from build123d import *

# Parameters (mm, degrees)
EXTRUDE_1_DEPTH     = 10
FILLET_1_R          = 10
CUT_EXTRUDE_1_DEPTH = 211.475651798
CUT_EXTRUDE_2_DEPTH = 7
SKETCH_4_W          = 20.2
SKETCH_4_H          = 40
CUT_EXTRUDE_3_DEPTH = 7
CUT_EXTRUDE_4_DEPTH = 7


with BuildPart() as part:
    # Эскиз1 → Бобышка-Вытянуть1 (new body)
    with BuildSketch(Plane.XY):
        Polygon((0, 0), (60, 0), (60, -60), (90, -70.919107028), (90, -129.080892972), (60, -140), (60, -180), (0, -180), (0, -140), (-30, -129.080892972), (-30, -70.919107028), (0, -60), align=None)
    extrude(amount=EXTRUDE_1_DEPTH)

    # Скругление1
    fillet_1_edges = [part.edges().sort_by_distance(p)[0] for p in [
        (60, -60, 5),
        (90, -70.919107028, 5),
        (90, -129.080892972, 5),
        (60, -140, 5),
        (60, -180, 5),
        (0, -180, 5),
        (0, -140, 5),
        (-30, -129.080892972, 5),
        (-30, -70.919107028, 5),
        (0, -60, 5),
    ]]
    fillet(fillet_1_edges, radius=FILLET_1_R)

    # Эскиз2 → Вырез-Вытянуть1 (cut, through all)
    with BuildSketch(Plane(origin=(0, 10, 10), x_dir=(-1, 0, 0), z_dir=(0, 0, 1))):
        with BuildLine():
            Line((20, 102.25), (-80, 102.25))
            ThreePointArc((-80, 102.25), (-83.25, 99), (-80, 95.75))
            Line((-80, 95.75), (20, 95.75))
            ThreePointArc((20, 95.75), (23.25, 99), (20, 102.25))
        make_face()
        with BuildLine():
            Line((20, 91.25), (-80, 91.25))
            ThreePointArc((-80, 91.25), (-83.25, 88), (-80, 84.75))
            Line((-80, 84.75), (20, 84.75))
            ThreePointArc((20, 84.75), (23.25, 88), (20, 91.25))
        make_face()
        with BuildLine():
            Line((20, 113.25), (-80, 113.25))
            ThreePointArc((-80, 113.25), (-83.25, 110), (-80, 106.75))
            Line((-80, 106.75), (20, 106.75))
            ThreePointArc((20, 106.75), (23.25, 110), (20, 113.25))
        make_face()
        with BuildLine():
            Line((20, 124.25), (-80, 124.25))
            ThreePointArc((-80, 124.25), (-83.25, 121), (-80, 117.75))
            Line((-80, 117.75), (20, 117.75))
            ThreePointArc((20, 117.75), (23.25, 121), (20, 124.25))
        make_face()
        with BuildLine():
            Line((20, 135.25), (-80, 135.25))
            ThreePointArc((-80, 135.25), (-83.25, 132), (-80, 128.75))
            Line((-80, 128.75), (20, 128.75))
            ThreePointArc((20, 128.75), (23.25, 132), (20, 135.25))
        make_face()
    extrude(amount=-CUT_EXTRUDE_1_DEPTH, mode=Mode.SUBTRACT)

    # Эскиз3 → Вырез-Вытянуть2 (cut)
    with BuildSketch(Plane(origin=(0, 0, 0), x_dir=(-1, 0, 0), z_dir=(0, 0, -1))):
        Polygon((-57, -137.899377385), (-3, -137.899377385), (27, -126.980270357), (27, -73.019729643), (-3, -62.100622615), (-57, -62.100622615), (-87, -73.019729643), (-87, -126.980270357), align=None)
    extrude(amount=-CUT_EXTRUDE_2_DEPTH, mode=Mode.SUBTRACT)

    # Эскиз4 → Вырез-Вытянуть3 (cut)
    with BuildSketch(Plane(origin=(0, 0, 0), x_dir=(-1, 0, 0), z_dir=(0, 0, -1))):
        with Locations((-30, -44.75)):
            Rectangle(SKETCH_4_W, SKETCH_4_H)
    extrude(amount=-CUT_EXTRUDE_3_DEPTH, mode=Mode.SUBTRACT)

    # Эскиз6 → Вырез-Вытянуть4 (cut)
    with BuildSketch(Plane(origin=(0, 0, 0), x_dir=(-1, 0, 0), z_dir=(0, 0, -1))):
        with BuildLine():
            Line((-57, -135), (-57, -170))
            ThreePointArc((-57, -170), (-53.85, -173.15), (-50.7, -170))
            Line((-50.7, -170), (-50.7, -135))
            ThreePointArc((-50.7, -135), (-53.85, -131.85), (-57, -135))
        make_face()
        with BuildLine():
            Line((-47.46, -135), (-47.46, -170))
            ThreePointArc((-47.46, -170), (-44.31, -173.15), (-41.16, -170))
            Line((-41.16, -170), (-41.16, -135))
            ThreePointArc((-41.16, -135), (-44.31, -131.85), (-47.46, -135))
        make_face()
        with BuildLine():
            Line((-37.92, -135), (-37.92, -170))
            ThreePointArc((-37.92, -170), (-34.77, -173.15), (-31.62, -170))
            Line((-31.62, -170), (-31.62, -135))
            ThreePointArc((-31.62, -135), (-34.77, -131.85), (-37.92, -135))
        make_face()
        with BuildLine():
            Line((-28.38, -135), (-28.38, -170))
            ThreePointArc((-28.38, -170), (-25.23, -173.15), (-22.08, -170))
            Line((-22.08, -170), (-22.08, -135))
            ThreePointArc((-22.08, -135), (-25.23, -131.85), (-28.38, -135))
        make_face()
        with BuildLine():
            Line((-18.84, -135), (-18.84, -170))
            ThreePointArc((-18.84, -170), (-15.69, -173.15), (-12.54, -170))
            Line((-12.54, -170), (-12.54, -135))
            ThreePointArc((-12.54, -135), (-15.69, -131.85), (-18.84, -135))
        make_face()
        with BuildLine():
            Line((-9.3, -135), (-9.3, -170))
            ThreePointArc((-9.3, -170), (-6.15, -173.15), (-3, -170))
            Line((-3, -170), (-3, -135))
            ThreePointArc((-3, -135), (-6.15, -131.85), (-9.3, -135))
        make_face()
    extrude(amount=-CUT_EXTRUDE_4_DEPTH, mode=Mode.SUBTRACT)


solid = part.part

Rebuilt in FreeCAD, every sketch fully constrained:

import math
import FreeCAD as App
import Part
import Sketcher
from FreeCAD import Vector
Q = App.Units.Quantity


def edges_at(feature, points):
    """Names of the edges that pass closest to the given points."""
    edges = feature.Shape.Edges
    near = lambda p: min(range(len(edges)), key=lambda i: edges[i].distToShape(Part.Vertex(*p))[0])
    return sorted({f"Edge{near(p) + 1}" for p in points})

doc = App.newDocument("Part")
body = doc.addObject("PartDesign::Body", "Body")

# Sketch on XY plane
sketch1 = body.newObject("Sketcher::SketchObject", "Sketch")
sketch1.AttachmentSupport = (doc.getObject("XY_Plane"), [""])
sketch1.MapMode = "FlatFace"
sketch1.addGeometry(Part.LineSegment(Vector(60, 0, 0), Vector(0, 0, 0)), False)
sketch1.addGeometry(Part.LineSegment(Vector(0, 0, 0), Vector(0, -60, 0)), False)
sketch1.addGeometry(Part.LineSegment(Vector(0, -60, 0), Vector(-30, -71, 0)), False)
sketch1.addGeometry(Part.LineSegment(Vector(-30, -71, 0), Vector(-30, -129, 0)), False)
sketch1.addGeometry(Part.LineSegment(Vector(-30, -129, 0), Vector(0, -140, 0)), False)
sketch1.addGeometry(Part.LineSegment(Vector(0, -140, 0), Vector(0, -180, 0)), False)
sketch1.addGeometry(Part.LineSegment(Vector(0, -180, 0), Vector(60, -180, 0)), False)
sketch1.addGeometry(Part.LineSegment(Vector(60, -180, 0), Vector(60, -140, 0)), False)
sketch1.addGeometry(Part.LineSegment(Vector(60, -140, 0), Vector(90, -129, 0)), False)
sketch1.addGeometry(Part.LineSegment(Vector(90, -129, 0), Vector(90, -71, 0)), False)
sketch1.addGeometry(Part.LineSegment(Vector(90, -71, 0), Vector(60, -60, 0)), False)
sketch1.addGeometry(Part.LineSegment(Vector(60, -60, 0), Vector(60, 0, 0)), False)
sketch1.addConstraint(Sketcher.Constraint("Coincident", 0, 2, 1, 1))
sketch1.addConstraint(Sketcher.Constraint("Coincident", 1, 2, 2, 1))
sketch1.addConstraint(Sketcher.Constraint("Coincident", 2, 2, 3, 1))
sketch1.addConstraint(Sketcher.Constraint("Coincident", 3, 2, 4, 1))
sketch1.addConstraint(Sketcher.Constraint("Coincident", 4, 2, 5, 1))
sketch1.addConstraint(Sketcher.Constraint("Coincident", 5, 2, 6, 1))
sketch1.addConstraint(Sketcher.Constraint("Coincident", 6, 2, 7, 1))
sketch1.addConstraint(Sketcher.Constraint("Coincident", 7, 2, 8, 1))
sketch1.addConstraint(Sketcher.Constraint("Coincident", 8, 2, 9, 1))
sketch1.addConstraint(Sketcher.Constraint("Coincident", 9, 2, 10, 1))
sketch1.addConstraint(Sketcher.Constraint("Coincident", 10, 2, 11, 1))
sketch1.addConstraint(Sketcher.Constraint("Coincident", 11, 2, 0, 1))
sketch1.addConstraint(Sketcher.Constraint("Horizontal", 0))
sketch1.addConstraint(Sketcher.Constraint("Vertical", 1))
sketch1.addConstraint(Sketcher.Constraint("Vertical", 3))
sketch1.addConstraint(Sketcher.Constraint("Vertical", 5))
sketch1.addConstraint(Sketcher.Constraint("Horizontal", 6))
sketch1.addConstraint(Sketcher.Constraint("Vertical", 7))
sketch1.addConstraint(Sketcher.Constraint("Vertical", 9))
sketch1.addConstraint(Sketcher.Constraint("Vertical", 11))
sketch1.addConstraint(Sketcher.Constraint("Coincident", 0, 2, -1, 1))
sketch1.addConstraint(Sketcher.Constraint("PointOnObject", 4, 2, -2))
sketch1.addConstraint(Sketcher.Constraint("Parallel", 2, 8))
sketch1.addConstraint(Sketcher.Constraint("Parallel", 4, 10))
sketch1.addConstraint(Sketcher.Constraint("Horizontal", 4, 2, 7, 2))
sketch1.addConstraint(Sketcher.Constraint("Horizontal", 3, 2, 8, 2))
sketch1.addConstraint(Sketcher.Constraint("Horizontal", 2, 2, 9, 2))
sketch1.addConstraint(Sketcher.Constraint("Horizontal", 1, 2, 10, 2))
sketch1.addConstraint(Sketcher.Constraint("Vertical", 7, 2, 10, 2))
sketch1.addConstraint(Sketcher.Constraint("Equal", 6, 1))
sketch1.addConstraint(Sketcher.Constraint("DistanceX", 0, 2, 0, 1, 60.0))
sketch1.addConstraint(Sketcher.Constraint("DistanceY", 5, 2, 5, 1, 40.0))
sketch1.addConstraint(Sketcher.Constraint("Angle", 2, Q("-160 deg")))
sketch1.addConstraint(Sketcher.Constraint("DistanceX", 2, 2, -1, 1, 30.0))
sketch1.addConstraint(Sketcher.Constraint("DistanceY", 4, 2, -1, 1, 140.0))
pad1 = body.newObject("PartDesign::Pad", "Pad")
pad1.Profile = sketch1
pad1.Length = 10
doc.recompute()

fillet = body.newObject("PartDesign::Fillet", "Fillet")
fillet.Base = (pad1, edges_at(pad1, [
    (60, -60, 5),
    (90, -70.919, 5),
    (90, -129.081, 5),
    (60, -140, 5),
    (60, -180, 5),
    (0, -180, 5),
    (0, -140, 5),
    (-30, -129.081, 5),
    (-30, -70.919, 5),
    (0, -60, 5),
]))
fillet.Radius = 10

# Sketch on XY plane
sketch2 = body.newObject("Sketcher::SketchObject", "Sketch001")
sketch2.AttachmentSupport = (doc.getObject("XY_Plane"), [""])
sketch2.MapMode = "FlatFace"
sketch2.AttachmentOffset = App.Placement(Vector(0, 0, 10), App.Rotation())
sketch2.addGeometry(Part.LineSegment(Vector(-20, -92.2, 0), Vector(80, -92.2, 0)), False)
sketch2.addGeometry(Part.ArcOfCircle(Part.Circle(Vector(80, -89, 0), Vector(0, 0, 1), 3.2), math.radians(-90), math.radians(90)), False)
sketch2.addGeometry(Part.LineSegment(Vector(80, -85.8, 0), Vector(-20, -85.8, 0)), False)
sketch2.addGeometry(Part.ArcOfCircle(Part.Circle(Vector(-20, -89, 0), Vector(0, 0, 1), 3.2), math.radians(90), math.radians(270)), False)
sketch2.addGeometry(Part.LineSegment(Vector(-20, -81.2, 0), Vector(80, -81.2, 0)), False)
sketch2.addGeometry(Part.ArcOfCircle(Part.Circle(Vector(80, -78, 0), Vector(0, 0, 1), 3.2), math.radians(-90), math.radians(90)), False)
sketch2.addGeometry(Part.LineSegment(Vector(80, -74.8, 0), Vector(-20, -74.8, 0)), False)
sketch2.addGeometry(Part.ArcOfCircle(Part.Circle(Vector(-20, -78, 0), Vector(0, 0, 1), 3.2), math.radians(90), math.radians(270)), False)
sketch2.addGeometry(Part.LineSegment(Vector(-20, -103.2, 0), Vector(80, -103.2, 0)), False)
sketch2.addGeometry(Part.ArcOfCircle(Part.Circle(Vector(80, -100, 0), Vector(0, 0, 1), 3.2), math.radians(-90), math.radians(90)), False)
sketch2.addGeometry(Part.LineSegment(Vector(80, -96.8, 0), Vector(-20, -96.8, 0)), False)
sketch2.addGeometry(Part.ArcOfCircle(Part.Circle(Vector(-20, -100, 0), Vector(0, 0, 1), 3.2), math.radians(90), math.radians(270)), False)
sketch2.addGeometry(Part.LineSegment(Vector(-20, -114.2, 0), Vector(80, -114.2, 0)), False)
sketch2.addGeometry(Part.ArcOfCircle(Part.Circle(Vector(80, -111, 0), Vector(0, 0, 1), 3.2), math.radians(-90), math.radians(90)), False)
sketch2.addGeometry(Part.LineSegment(Vector(80, -107.8, 0), Vector(-20, -107.8, 0)), False)
sketch2.addGeometry(Part.ArcOfCircle(Part.Circle(Vector(-20, -111, 0), Vector(0, 0, 1), 3.2), math.radians(90), math.radians(270)), False)
sketch2.addGeometry(Part.LineSegment(Vector(-20, -125.2, 0), Vector(80, -125.2, 0)), False)
sketch2.addGeometry(Part.ArcOfCircle(Part.Circle(Vector(80, -122, 0), Vector(0, 0, 1), 3.2), math.radians(-90), math.radians(90)), False)
sketch2.addGeometry(Part.LineSegment(Vector(80, -118.8, 0), Vector(-20, -118.8, 0)), False)
sketch2.addGeometry(Part.ArcOfCircle(Part.Circle(Vector(-20, -122, 0), Vector(0, 0, 1), 3.2), math.radians(90), math.radians(270)), False)
sketch2.addConstraint(Sketcher.Constraint("Tangent", 0, 2, 1, 1))
sketch2.addConstraint(Sketcher.Constraint("Tangent", 1, 2, 2, 1))
sketch2.addConstraint(Sketcher.Constraint("Tangent", 2, 2, 3, 1))
sketch2.addConstraint(Sketcher.Constraint("Tangent", 3, 2, 0, 1))
sketch2.addConstraint(Sketcher.Constraint("Tangent", 4, 2, 5, 1))
sketch2.addConstraint(Sketcher.Constraint("Tangent", 5, 2, 6, 1))
sketch2.addConstraint(Sketcher.Constraint("Tangent", 6, 2, 7, 1))
sketch2.addConstraint(Sketcher.Constraint("Tangent", 7, 2, 4, 1))
sketch2.addConstraint(Sketcher.Constraint("Tangent", 8, 2, 9, 1))
sketch2.addConstraint(Sketcher.Constraint("Tangent", 9, 2, 10, 1))
sketch2.addConstraint(Sketcher.Constraint("Tangent", 10, 2, 11, 1))
sketch2.addConstraint(Sketcher.Constraint("Tangent", 11, 2, 8, 1))
sketch2.addConstraint(Sketcher.Constraint("Tangent", 12, 2, 13, 1))
sketch2.addConstraint(Sketcher.Constraint("Tangent", 13, 2, 14, 1))
sketch2.addConstraint(Sketcher.Constraint("Tangent", 14, 2, 15, 1))
sketch2.addConstraint(Sketcher.Constraint("Tangent", 15, 2, 12, 1))
sketch2.addConstraint(Sketcher.Constraint("Tangent", 16, 2, 17, 1))
sketch2.addConstraint(Sketcher.Constraint("Tangent", 17, 2, 18, 1))
sketch2.addConstraint(Sketcher.Constraint("Tangent", 18, 2, 19, 1))
sketch2.addConstraint(Sketcher.Constraint("Tangent", 19, 2, 16, 1))
sketch2.addConstraint(Sketcher.Constraint("Horizontal", 0))
sketch2.addConstraint(Sketcher.Constraint("Horizontal", 2))
sketch2.addConstraint(Sketcher.Constraint("Horizontal", 4))
sketch2.addConstraint(Sketcher.Constraint("Horizontal", 6))
sketch2.addConstraint(Sketcher.Constraint("Horizontal", 8))
sketch2.addConstraint(Sketcher.Constraint("Horizontal", 10))
sketch2.addConstraint(Sketcher.Constraint("Horizontal", 12))
sketch2.addConstraint(Sketcher.Constraint("Horizontal", 14))
sketch2.addConstraint(Sketcher.Constraint("Horizontal", 16))
sketch2.addConstraint(Sketcher.Constraint("Horizontal", 18))
sketch2.addConstraint(Sketcher.Constraint("Equal", 3, 5))
sketch2.addConstraint(Sketcher.Constraint("Equal", 7, 9))
sketch2.addConstraint(Sketcher.Constraint("Equal", 11, 13))
sketch2.addConstraint(Sketcher.Constraint("Equal", 15, 17))
sketch2.addConstraint(Sketcher.Constraint("Vertical", 1, 3, 5, 3))
sketch2.addConstraint(Sketcher.Constraint("Vertical", 3, 3, 7, 3))
sketch2.addConstraint(Sketcher.Constraint("Vertical", 5, 3, 9, 3))
sketch2.addConstraint(Sketcher.Constraint("Vertical", 7, 3, 11, 3))
sketch2.addConstraint(Sketcher.Constraint("Vertical", 9, 3, 13, 3))
sketch2.addConstraint(Sketcher.Constraint("Vertical", 11, 3, 15, 3))
sketch2.addConstraint(Sketcher.Constraint("Vertical", 13, 3, 17, 3))
sketch2.addConstraint(Sketcher.Constraint("Vertical", 15, 3, 19, 3))
sketch2.addConstraint(Sketcher.Constraint("DistanceX", 0, 1, 0, 2, 100.0))
sketch2.addConstraint(Sketcher.Constraint("Radius", 1, 3.25))
sketch2.addConstraint(Sketcher.Constraint("DistanceX", -1, 1, 1, 3, 80.0))
sketch2.addConstraint(Sketcher.Constraint("DistanceY", 1, 3, -1, 1, 89.0))
sketch2.addConstraint(Sketcher.Constraint("DistanceY", 5, 3, -1, 1, 78.0))
sketch2.addConstraint(Sketcher.Constraint("DistanceY", 9, 3, -1, 1, 100.0))
sketch2.addConstraint(Sketcher.Constraint("DistanceY", 13, 3, -1, 1, 111.0))
sketch2.addConstraint(Sketcher.Constraint("DistanceY", 17, 3, -1, 1, 122.0))
pocket1 = body.newObject("PartDesign::Pocket", "Pocket")
pocket1.Profile = sketch2
pocket1.Type = "ThroughAll"

# Sketch on XY plane
sketch3 = body.newObject("Sketcher::SketchObject", "Sketch002")
sketch3.AttachmentSupport = (doc.getObject("XY_Plane"), [""])
sketch3.MapMode = "FlatFace"
sketch3.addGeometry(Part.LineSegment(Vector(57, -138, 0), Vector(3, -138, 0)), False)
sketch3.addGeometry(Part.LineSegment(Vector(3, -138, 0), Vector(-27, -127, 0)), False)
sketch3.addGeometry(Part.LineSegment(Vector(-27, -127, 0), Vector(-27, -73, 0)), False)
sketch3.addGeometry(Part.LineSegment(Vector(-27, -73, 0), Vector(3, -62, 0)), False)
sketch3.addGeometry(Part.LineSegment(Vector(3, -62, 0), Vector(57, -62, 0)), False)
sketch3.addGeometry(Part.LineSegment(Vector(57, -62, 0), Vector(87, -73, 0)), False)
sketch3.addGeometry(Part.LineSegment(Vector(87, -73, 0), Vector(87, -127, 0)), False)
sketch3.addGeometry(Part.LineSegment(Vector(87, -127, 0), Vector(57, -138, 0)), False)
sketch3.addConstraint(Sketcher.Constraint("Coincident", 0, 2, 1, 1))
sketch3.addConstraint(Sketcher.Constraint("Coincident", 1, 2, 2, 1))
sketch3.addConstraint(Sketcher.Constraint("Coincident", 2, 2, 3, 1))
sketch3.addConstraint(Sketcher.Constraint("Coincident", 3, 2, 4, 1))
sketch3.addConstraint(Sketcher.Constraint("Coincident", 4, 2, 5, 1))
sketch3.addConstraint(Sketcher.Constraint("Coincident", 5, 2, 6, 1))
sketch3.addConstraint(Sketcher.Constraint("Coincident", 6, 2, 7, 1))
sketch3.addConstraint(Sketcher.Constraint("Coincident", 7, 2, 0, 1))
sketch3.addConstraint(Sketcher.Constraint("Horizontal", 0))
sketch3.addConstraint(Sketcher.Constraint("Vertical", 2))
sketch3.addConstraint(Sketcher.Constraint("Horizontal", 4))
sketch3.addConstraint(Sketcher.Constraint("Vertical", 6))
sketch3.addConstraint(Sketcher.Constraint("Parallel", 1, 5))
sketch3.addConstraint(Sketcher.Constraint("Parallel", 3, 7))
sketch3.addConstraint(Sketcher.Constraint("Horizontal", 2, 2, 5, 2))
sketch3.addConstraint(Sketcher.Constraint("Horizontal", 1, 2, 6, 2))
sketch3.addConstraint(Sketcher.Constraint("Vertical", 0, 2, 3, 2))
sketch3.addConstraint(Sketcher.Constraint("Vertical", 4, 2, 7, 2))
sketch3.addConstraint(Sketcher.Constraint("DistanceX", 0, 2, 0, 1, 54.0))
sketch3.addConstraint(Sketcher.Constraint("Angle", 1, Q("160 deg")))
sketch3.addConstraint(Sketcher.Constraint("DistanceX", -1, 1, 0, 2, 3.0))
sketch3.addConstraint(Sketcher.Constraint("DistanceX", 1, 2, -1, 1, 27.0))
sketch3.addConstraint(Sketcher.Constraint("DistanceY", 2, 1, 2, 2, 53.960541))
sketch3.addConstraint(Sketcher.Constraint("DistanceY", 1, 2, -1, 1, 126.98027))
pocket2 = body.newObject("PartDesign::Pocket", "Pocket001")
pocket2.Profile = sketch3
pocket2.Length = 7
pocket2.Reversed = True

# Sketch on XY plane
sketch4 = body.newObject("Sketcher::SketchObject", "Sketch003")
sketch4.AttachmentSupport = (doc.getObject("XY_Plane"), [""])
sketch4.MapMode = "FlatFace"
sketch4.addGeometry(Part.LineSegment(Vector(40, -25, 0), Vector(40, -65, 0)), False)
sketch4.addGeometry(Part.LineSegment(Vector(40, -65, 0), Vector(20, -65, 0)), False)
sketch4.addGeometry(Part.LineSegment(Vector(20, -65, 0), Vector(20, -25, 0)), False)
sketch4.addGeometry(Part.LineSegment(Vector(20, -25, 0), Vector(40, -25, 0)), False)
sketch4.addConstraint(Sketcher.Constraint("Coincident", 0, 2, 1, 1))
sketch4.addConstraint(Sketcher.Constraint("Coincident", 1, 2, 2, 1))
sketch4.addConstraint(Sketcher.Constraint("Coincident", 2, 2, 3, 1))
sketch4.addConstraint(Sketcher.Constraint("Coincident", 3, 2, 0, 1))
sketch4.addConstraint(Sketcher.Constraint("Vertical", 0))
sketch4.addConstraint(Sketcher.Constraint("Horizontal", 1))
sketch4.addConstraint(Sketcher.Constraint("Vertical", 2))
sketch4.addConstraint(Sketcher.Constraint("Horizontal", 3))
sketch4.addConstraint(Sketcher.Constraint("DistanceY", 0, 2, 0, 1, 40.0))
sketch4.addConstraint(Sketcher.Constraint("DistanceX", 1, 2, 1, 1, 20.2))
sketch4.addConstraint(Sketcher.Constraint("DistanceX", -1, 1, 0, 2, 40.1))
sketch4.addConstraint(Sketcher.Constraint("DistanceY", 0, 2, -1, 1, 64.75))
pocket3 = body.newObject("PartDesign::Pocket", "Pocket002")
pocket3.Profile = sketch4
pocket3.Length = 7
pocket3.Reversed = True

# Sketch on XY plane
sketch5 = body.newObject("Sketcher::SketchObject", "Sketch004")
sketch5.AttachmentSupport = (doc.getObject("XY_Plane"), [""])
sketch5.MapMode = "FlatFace"
sketch5.addGeometry(Part.LineSegment(Vector(57, -135, 0), Vector(57, -170, 0)), False)
sketch5.addGeometry(Part.ArcOfCircle(Part.Circle(Vector(53.9, -170, 0), Vector(0, 0, 1), 3.1), math.radians(180), math.radians(360)), False)
sketch5.addGeometry(Part.LineSegment(Vector(50.7, -170, 0), Vector(50.7, -135, 0)), False)
sketch5.addGeometry(Part.ArcOfCircle(Part.Circle(Vector(53.9, -135, 0), Vector(0, 0, 1), 3.1), math.radians(0), math.radians(180)), False)
sketch5.addGeometry(Part.LineSegment(Vector(47.5, -135, 0), Vector(47.5, -170, 0)), False)
sketch5.addGeometry(Part.ArcOfCircle(Part.Circle(Vector(44.3, -170, 0), Vector(0, 0, 1), 3.1), math.radians(180), math.radians(360)), False)
sketch5.addGeometry(Part.LineSegment(Vector(41.2, -170, 0), Vector(41.2, -135, 0)), False)
sketch5.addGeometry(Part.ArcOfCircle(Part.Circle(Vector(44.3, -135, 0), Vector(0, 0, 1), 3.1), math.radians(0), math.radians(180)), False)
sketch5.addGeometry(Part.LineSegment(Vector(37.9, -135, 0), Vector(37.9, -170, 0)), False)
sketch5.addGeometry(Part.ArcOfCircle(Part.Circle(Vector(34.8, -170, 0), Vector(0, 0, 1), 3.1), math.radians(180), math.radians(360)), False)
sketch5.addGeometry(Part.LineSegment(Vector(31.6, -170, 0), Vector(31.6, -135, 0)), False)
sketch5.addGeometry(Part.ArcOfCircle(Part.Circle(Vector(34.8, -135, 0), Vector(0, 0, 1), 3.1), math.radians(0), math.radians(180)), False)
sketch5.addGeometry(Part.LineSegment(Vector(28.4, -135, 0), Vector(28.4, -170, 0)), False)
sketch5.addGeometry(Part.ArcOfCircle(Part.Circle(Vector(25.2, -170, 0), Vector(0, 0, 1), 3.1), math.radians(180), math.radians(360)), False)
sketch5.addGeometry(Part.LineSegment(Vector(22.1, -170, 0), Vector(22.1, -135, 0)), False)
sketch5.addGeometry(Part.ArcOfCircle(Part.Circle(Vector(25.2, -135, 0), Vector(0, 0, 1), 3.1), math.radians(0), math.radians(180)), False)
sketch5.addGeometry(Part.LineSegment(Vector(18.8, -135, 0), Vector(18.8, -170, 0)), False)
sketch5.addGeometry(Part.ArcOfCircle(Part.Circle(Vector(15.7, -170, 0), Vector(0, 0, 1), 3.1), math.radians(180), math.radians(360)), False)
sketch5.addGeometry(Part.LineSegment(Vector(12.5, -170, 0), Vector(12.5, -135, 0)), False)
sketch5.addGeometry(Part.ArcOfCircle(Part.Circle(Vector(15.7, -135, 0), Vector(0, 0, 1), 3.1), math.radians(0), math.radians(180)), False)
sketch5.addGeometry(Part.LineSegment(Vector(9.3, -135, 0), Vector(9.3, -170, 0)), False)
sketch5.addGeometry(Part.ArcOfCircle(Part.Circle(Vector(6.2, -170, 0), Vector(0, 0, 1), 3.1), math.radians(180), math.radians(360)), False)
sketch5.addGeometry(Part.LineSegment(Vector(3, -170, 0), Vector(3, -135, 0)), False)
sketch5.addGeometry(Part.ArcOfCircle(Part.Circle(Vector(6.2, -135, 0), Vector(0, 0, 1), 3.1), math.radians(0), math.radians(180)), False)
sketch5.addConstraint(Sketcher.Constraint("Tangent", 0, 2, 1, 2))
sketch5.addConstraint(Sketcher.Constraint("Tangent", 1, 1, 2, 1))
sketch5.addConstraint(Sketcher.Constraint("Tangent", 2, 2, 3, 2))
sketch5.addConstraint(Sketcher.Constraint("Tangent", 3, 1, 0, 1))
sketch5.addConstraint(Sketcher.Constraint("Tangent", 4, 2, 5, 2))
sketch5.addConstraint(Sketcher.Constraint("Tangent", 5, 1, 6, 1))
sketch5.addConstraint(Sketcher.Constraint("Tangent", 6, 2, 7, 2))
sketch5.addConstraint(Sketcher.Constraint("Tangent", 7, 1, 4, 1))
sketch5.addConstraint(Sketcher.Constraint("Tangent", 8, 2, 9, 2))
sketch5.addConstraint(Sketcher.Constraint("Tangent", 9, 1, 10, 1))
sketch5.addConstraint(Sketcher.Constraint("Tangent", 10, 2, 11, 2))
sketch5.addConstraint(Sketcher.Constraint("Tangent", 11, 1, 8, 1))
sketch5.addConstraint(Sketcher.Constraint("Tangent", 12, 2, 13, 2))
sketch5.addConstraint(Sketcher.Constraint("Tangent", 13, 1, 14, 1))
sketch5.addConstraint(Sketcher.Constraint("Tangent", 14, 2, 15, 2))
sketch5.addConstraint(Sketcher.Constraint("Tangent", 15, 1, 12, 1))
sketch5.addConstraint(Sketcher.Constraint("Tangent", 16, 2, 17, 2))
sketch5.addConstraint(Sketcher.Constraint("Tangent", 17, 1, 18, 1))
sketch5.addConstraint(Sketcher.Constraint("Tangent", 18, 2, 19, 2))
sketch5.addConstraint(Sketcher.Constraint("Tangent", 19, 1, 16, 1))
sketch5.addConstraint(Sketcher.Constraint("Tangent", 20, 2, 21, 2))
sketch5.addConstraint(Sketcher.Constraint("Tangent", 21, 1, 22, 1))
sketch5.addConstraint(Sketcher.Constraint("Tangent", 22, 2, 23, 2))
sketch5.addConstraint(Sketcher.Constraint("Tangent", 23, 1, 20, 1))
sketch5.addConstraint(Sketcher.Constraint("Vertical", 0))
sketch5.addConstraint(Sketcher.Constraint("Vertical", 2))
sketch5.addConstraint(Sketcher.Constraint("Vertical", 4))
sketch5.addConstraint(Sketcher.Constraint("Vertical", 6))
sketch5.addConstraint(Sketcher.Constraint("Vertical", 8))
sketch5.addConstraint(Sketcher.Constraint("Vertical", 10))
sketch5.addConstraint(Sketcher.Constraint("Vertical", 12))
sketch5.addConstraint(Sketcher.Constraint("Vertical", 14))
sketch5.addConstraint(Sketcher.Constraint("Vertical", 16))
sketch5.addConstraint(Sketcher.Constraint("Vertical", 18))
sketch5.addConstraint(Sketcher.Constraint("Vertical", 20))
sketch5.addConstraint(Sketcher.Constraint("Vertical", 22))
sketch5.addConstraint(Sketcher.Constraint("Equal", 3, 5))
sketch5.addConstraint(Sketcher.Constraint("Equal", 7, 9))
sketch5.addConstraint(Sketcher.Constraint("Equal", 11, 13))
sketch5.addConstraint(Sketcher.Constraint("Equal", 15, 17))
sketch5.addConstraint(Sketcher.Constraint("Equal", 19, 21))
sketch5.addConstraint(Sketcher.Constraint("Horizontal", 1, 3, 5, 3))
sketch5.addConstraint(Sketcher.Constraint("Horizontal", 3, 3, 7, 3))
sketch5.addConstraint(Sketcher.Constraint("Horizontal", 5, 3, 9, 3))
sketch5.addConstraint(Sketcher.Constraint("Horizontal", 7, 3, 11, 3))
sketch5.addConstraint(Sketcher.Constraint("Horizontal", 9, 3, 13, 3))
sketch5.addConstraint(Sketcher.Constraint("Horizontal", 11, 3, 15, 3))
sketch5.addConstraint(Sketcher.Constraint("Horizontal", 13, 3, 17, 3))
sketch5.addConstraint(Sketcher.Constraint("Horizontal", 15, 3, 19, 3))
sketch5.addConstraint(Sketcher.Constraint("Horizontal", 17, 3, 21, 3))
sketch5.addConstraint(Sketcher.Constraint("Horizontal", 19, 3, 23, 3))
sketch5.addConstraint(Sketcher.Constraint("DistanceY", 0, 2, 0, 1, 35.0))
sketch5.addConstraint(Sketcher.Constraint("Radius", 1, 3.15))
sketch5.addConstraint(Sketcher.Constraint("DistanceY", 1, 3, -1, 1, 170.0))
sketch5.addConstraint(Sketcher.Constraint("DistanceX", -1, 1, 0, 2, 57.0))
sketch5.addConstraint(Sketcher.Constraint("DistanceX", -1, 1, 21, 1, 3.0))
sketch5.addConstraint(Sketcher.Constraint("DistanceX", -1, 1, 5, 3, 44.31))
sketch5.addConstraint(Sketcher.Constraint("DistanceX", -1, 1, 9, 3, 34.77))
sketch5.addConstraint(Sketcher.Constraint("DistanceX", -1, 1, 13, 3, 25.23))
sketch5.addConstraint(Sketcher.Constraint("DistanceX", -1, 1, 17, 3, 15.69))
pocket4 = body.newObject("PartDesign::Pocket", "Pocket003")
pocket4.Profile = sketch5
pocket4.Length = 7
pocket4.Reversed = True

doc.recompute()
